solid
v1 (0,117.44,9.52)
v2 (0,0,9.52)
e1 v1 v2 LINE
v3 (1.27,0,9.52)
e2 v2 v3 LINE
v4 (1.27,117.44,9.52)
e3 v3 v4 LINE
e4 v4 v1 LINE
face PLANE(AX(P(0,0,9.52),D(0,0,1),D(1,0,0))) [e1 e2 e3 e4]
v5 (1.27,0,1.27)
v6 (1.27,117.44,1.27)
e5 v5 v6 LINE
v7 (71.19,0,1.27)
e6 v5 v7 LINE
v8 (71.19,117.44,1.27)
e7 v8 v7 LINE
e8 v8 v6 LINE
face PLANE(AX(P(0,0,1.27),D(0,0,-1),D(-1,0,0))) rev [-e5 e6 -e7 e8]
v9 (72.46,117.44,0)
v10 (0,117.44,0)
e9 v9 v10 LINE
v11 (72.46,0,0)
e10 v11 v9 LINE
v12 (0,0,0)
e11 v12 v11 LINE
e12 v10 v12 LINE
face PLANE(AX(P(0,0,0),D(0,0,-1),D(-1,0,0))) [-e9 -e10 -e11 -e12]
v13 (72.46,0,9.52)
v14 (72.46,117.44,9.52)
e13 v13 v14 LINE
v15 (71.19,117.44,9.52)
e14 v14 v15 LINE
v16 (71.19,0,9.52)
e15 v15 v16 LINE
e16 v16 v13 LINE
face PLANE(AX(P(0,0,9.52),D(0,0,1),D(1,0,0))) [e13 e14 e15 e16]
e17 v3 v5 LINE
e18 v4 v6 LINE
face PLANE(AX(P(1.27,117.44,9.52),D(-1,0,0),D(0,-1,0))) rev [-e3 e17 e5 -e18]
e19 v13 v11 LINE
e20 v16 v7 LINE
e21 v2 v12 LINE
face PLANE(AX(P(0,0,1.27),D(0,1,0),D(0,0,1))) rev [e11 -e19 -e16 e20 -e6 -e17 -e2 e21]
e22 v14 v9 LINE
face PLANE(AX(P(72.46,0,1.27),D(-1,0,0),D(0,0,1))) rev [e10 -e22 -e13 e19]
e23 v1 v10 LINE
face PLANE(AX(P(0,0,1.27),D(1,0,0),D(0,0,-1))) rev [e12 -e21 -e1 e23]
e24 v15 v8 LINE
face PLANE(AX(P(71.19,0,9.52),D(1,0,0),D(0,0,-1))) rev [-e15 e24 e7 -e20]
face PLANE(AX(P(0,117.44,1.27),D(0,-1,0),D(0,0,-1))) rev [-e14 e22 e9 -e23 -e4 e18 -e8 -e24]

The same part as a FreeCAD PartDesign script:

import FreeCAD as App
import Part
import Sketcher
from FreeCAD import Vector
Q = App.Units.Quantity


def add_polygon(sketch, points):
    """Adds a closed chain of lines whose ends are joined by coincident constraints."""
    first, n = sketch.GeometryCount, len(points)
    for a, b in zip(points, points[1:] + points[:1]):
        sketch.addGeometry(Part.LineSegment(App.Vector(*a, 0), App.Vector(*b, 0)), False)
    for i in range(n):
        sketch.addConstraint(Sketcher.Constraint("Coincident", first + i, 2, first + (i + 1) % n, 1))

doc = App.newDocument("Part")
body = doc.addObject("PartDesign::Body", "Body")

# Sketch on XY plane
sketch1 = body.newObject("Sketcher::SketchObject", "Sketch")
sketch1.AttachmentSupport = (doc.getObject("XY_Plane"), [""])
sketch1.MapMode = "FlatFace"
add_polygon(sketch1, [(0, 117), (0, 0), (72, 0), (72, 117)])  # lines 0-3
sketch1.addConstraint([
    Sketcher.Constraint("Vertical", 0),
    Sketcher.Constraint("Horizontal", 1),
    Sketcher.Constraint("Vertical", 2),
    Sketcher.Constraint("Horizontal", 3),
    Sketcher.Constraint("Coincident", 0, 2, -1, 1),
    Sketcher.Constraint("DistanceX", 1, 1, 1, 2, 72.46),
    Sketcher.Constraint("DistanceY", 0, 2, 0, 1, 117.44),
])
pad1 = body.newObject("PartDesign::Pad", "Pad")
pad1.Profile = sketch1
pad1.Length = Q("0.05 in")

# Sketch on XY plane
sketch2 = body.newObject("Sketcher::SketchObject", "Sketch001")
sketch2.AttachmentSupport = (doc.getObject("XY_Plane"), [""])
sketch2.MapMode = "FlatFace"
sketch2.AttachmentOffset = App.Placement(Vector(0, 0, 0.05 * 25.4), App.Rotation())
add_polygon(sketch2, [(0, 117.4), (0, 0), (1.3, 0), (1.3, 117.4)])  # lines 0-3
add_polygon(sketch2, [(71.2, 117.4), (71.2, 0), (72.5, 0), (72.5, 117.4)])  # lines 4-7
sketch2.addConstraint([
    Sketcher.Constraint("Vertical", 0),
    Sketcher.Constraint("Horizontal", 1),
    Sketcher.Constraint("Vertical", 2),
    Sketcher.Constraint("Horizontal", 3),
    Sketcher.Constraint("Vertical", 4),
    Sketcher.Constraint("Horizontal", 5),
    Sketcher.Constraint("Vertical", 6),
    Sketcher.Constraint("Horizontal", 7),
    Sketcher.Constraint("Coincident", 0, 2, -1, 1),
    Sketcher.Constraint("PointOnObject", 4, 2, -1),
    Sketcher.Constraint("Horizontal", 3, 2, 6, 2),
    Sketcher.Constraint("Equal", 3, 5),
    Sketcher.Constraint("DistanceX", 1, 1, 1, 2, Q("0.05 in")),
    Sketcher.Constraint("DistanceY", 0, 2, 0, 1, 117.44),
    Sketcher.Constraint("DistanceX", -1, 1, 4, 2, 71.19),
])
pad2 = body.newObject("PartDesign::Pad", "Pad001")
pad2.Profile = sketch2
pad2.Length = 8.25

doc.recompute()
